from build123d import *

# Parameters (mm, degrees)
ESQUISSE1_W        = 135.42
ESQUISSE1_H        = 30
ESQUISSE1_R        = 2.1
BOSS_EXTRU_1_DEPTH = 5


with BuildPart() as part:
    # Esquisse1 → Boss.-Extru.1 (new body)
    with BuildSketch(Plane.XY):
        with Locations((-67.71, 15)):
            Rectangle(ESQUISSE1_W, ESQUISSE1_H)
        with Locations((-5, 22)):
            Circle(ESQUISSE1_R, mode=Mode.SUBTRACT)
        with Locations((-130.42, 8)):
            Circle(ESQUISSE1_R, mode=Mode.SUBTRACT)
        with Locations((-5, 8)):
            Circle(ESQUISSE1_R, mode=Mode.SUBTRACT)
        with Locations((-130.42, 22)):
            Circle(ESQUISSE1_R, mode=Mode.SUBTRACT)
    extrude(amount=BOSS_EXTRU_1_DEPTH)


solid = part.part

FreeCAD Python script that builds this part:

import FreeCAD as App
import Part
import Sketcher


def add_polygon(sketch, points):
    """Adds a closed chain of lines whose ends are joined by coincident constraints."""
    first, n = sketch.GeometryCount, len(points)
    for a, b in zip(points, points[1:] + points[:1]):
        sketch.addGeometry(Part.LineSegment(App.Vector(*a, 0), App.Vector(*b, 0)), False)
    for i in range(n):
        sketch.addConstraint(Sketcher.Constraint("Coincident", first + i, 2, first + (i + 1) % n, 1))

doc = App.newDocument("Part")
params = doc.addObject("Spreadsheet::Sheet", "Params")
for row, (alias, value) in enumerate([
    ("sketch1_diameter", "4.2 mm"),
    ("sketch1_height", "30 mm"),
    ("sketch1_width", "135.42 mm"),
    ("pad1_length", "5 mm"),
], start=1):
    params.set(f"A{row}", alias)
    params.set(f"B{row}", "=" + value)
    params.setAlias(f"B{row}", alias)

body = doc.addObject("PartDesign::Body", "Body")

# Sketch on XY plane
sketch1 = body.newObject("Sketcher::SketchObject", "Sketch")
sketch1.AttachmentSupport = (doc.getObject("XY_Plane"), [""])
sketch1.MapMode = "FlatFace"
add_polygon(sketch1, [(-135.42, 30), (-135.42, 0), (0, 0), (0, 30)])  # lines 0-3
sketch1.addGeometry(Part.Circle(App.Vector(-130.42, 8, 0), App.Vector(0, 0, 1), 2.1), False)  # 4
sketch1.addGeometry(Part.Circle(App.Vector(-5, 8, 0), App.Vector(0, 0, 1), 2.1), False)  # 5
sketch1.addGeometry(Part.Circle(App.Vector(-130.42, 22, 0), App.Vector(0, 0, 1), 2.1), False)  # 6
sketch1.addGeometry(Part.Circle(App.Vector(-5, 22, 0), App.Vector(0, 0, 1), 2.1), False)  # 7
sketch1.addConstraint(Sketcher.Constraint("Vertical", 0))
sketch1.addConstraint(Sketcher.Constraint("Horizontal", 1))
sketch1.addConstraint(Sketcher.Constraint("Vertical", 2))
sketch1.addConstraint(Sketcher.Constraint("Horizontal", 3))
sketch1.addConstraint(Sketcher.Constraint("Coincident", 1, 2, -1, 1))
sketch1.addConstraint(Sketcher.Constraint("Equal", 4, 5))
sketch1.addConstraint(Sketcher.Constraint("Equal", 5, 6))
sketch1.addConstraint(Sketcher.Constraint("Equal", 6, 7))
sketch1.addConstraint(Sketcher.Constraint("Horizontal", 4, 3, 5, 3))
sketch1.addConstraint(Sketcher.Constraint("Horizontal", 6, 3, 7, 3))
sketch1.addConstraint(Sketcher.Constraint("Vertical", 4, 3, 6, 3))
sketch1.addConstraint(Sketcher.Constraint("Vertical", 5, 3, 7, 3))
sketch1.addConstraint(Sketcher.Constraint("Diameter", 4, 4.2))
sketch1.addConstraint(Sketcher.Constraint("DistanceY", 0, 2, 0, 1, 30.0))
sketch1.addConstraint(Sketcher.Constraint("DistanceY", -1, 1, 4, 3, 8.0))
sketch1.addConstraint(Sketcher.Constraint("DistanceX", 5, 3, -1, 1, 5.0))
sketch1.addConstraint(Sketcher.Constraint("DistanceY", -1, 1, 6, 3, 22.0))
sketch1.addConstraint(Sketcher.Constraint("DistanceX", 0, 2, 4, 3, 5.0))
sketch1.addConstraint(Sketcher.Constraint("DistanceX", 1, 1, 1, 2, 135.42))
sketch1.setExpression("Constraints[16]", "Params.sketch1_diameter")
sketch1.setExpression("Constraints[17]", "Params.sketch1_height")
sketch1.setExpression("Constraints[22]", "Params.sketch1_width")
pad1 = body.newObject("PartDesign::Pad", "Pad")
pad1.Profile = sketch1
pad1.setExpression("Length", "Params.pad1_length")

doc.recompute()
